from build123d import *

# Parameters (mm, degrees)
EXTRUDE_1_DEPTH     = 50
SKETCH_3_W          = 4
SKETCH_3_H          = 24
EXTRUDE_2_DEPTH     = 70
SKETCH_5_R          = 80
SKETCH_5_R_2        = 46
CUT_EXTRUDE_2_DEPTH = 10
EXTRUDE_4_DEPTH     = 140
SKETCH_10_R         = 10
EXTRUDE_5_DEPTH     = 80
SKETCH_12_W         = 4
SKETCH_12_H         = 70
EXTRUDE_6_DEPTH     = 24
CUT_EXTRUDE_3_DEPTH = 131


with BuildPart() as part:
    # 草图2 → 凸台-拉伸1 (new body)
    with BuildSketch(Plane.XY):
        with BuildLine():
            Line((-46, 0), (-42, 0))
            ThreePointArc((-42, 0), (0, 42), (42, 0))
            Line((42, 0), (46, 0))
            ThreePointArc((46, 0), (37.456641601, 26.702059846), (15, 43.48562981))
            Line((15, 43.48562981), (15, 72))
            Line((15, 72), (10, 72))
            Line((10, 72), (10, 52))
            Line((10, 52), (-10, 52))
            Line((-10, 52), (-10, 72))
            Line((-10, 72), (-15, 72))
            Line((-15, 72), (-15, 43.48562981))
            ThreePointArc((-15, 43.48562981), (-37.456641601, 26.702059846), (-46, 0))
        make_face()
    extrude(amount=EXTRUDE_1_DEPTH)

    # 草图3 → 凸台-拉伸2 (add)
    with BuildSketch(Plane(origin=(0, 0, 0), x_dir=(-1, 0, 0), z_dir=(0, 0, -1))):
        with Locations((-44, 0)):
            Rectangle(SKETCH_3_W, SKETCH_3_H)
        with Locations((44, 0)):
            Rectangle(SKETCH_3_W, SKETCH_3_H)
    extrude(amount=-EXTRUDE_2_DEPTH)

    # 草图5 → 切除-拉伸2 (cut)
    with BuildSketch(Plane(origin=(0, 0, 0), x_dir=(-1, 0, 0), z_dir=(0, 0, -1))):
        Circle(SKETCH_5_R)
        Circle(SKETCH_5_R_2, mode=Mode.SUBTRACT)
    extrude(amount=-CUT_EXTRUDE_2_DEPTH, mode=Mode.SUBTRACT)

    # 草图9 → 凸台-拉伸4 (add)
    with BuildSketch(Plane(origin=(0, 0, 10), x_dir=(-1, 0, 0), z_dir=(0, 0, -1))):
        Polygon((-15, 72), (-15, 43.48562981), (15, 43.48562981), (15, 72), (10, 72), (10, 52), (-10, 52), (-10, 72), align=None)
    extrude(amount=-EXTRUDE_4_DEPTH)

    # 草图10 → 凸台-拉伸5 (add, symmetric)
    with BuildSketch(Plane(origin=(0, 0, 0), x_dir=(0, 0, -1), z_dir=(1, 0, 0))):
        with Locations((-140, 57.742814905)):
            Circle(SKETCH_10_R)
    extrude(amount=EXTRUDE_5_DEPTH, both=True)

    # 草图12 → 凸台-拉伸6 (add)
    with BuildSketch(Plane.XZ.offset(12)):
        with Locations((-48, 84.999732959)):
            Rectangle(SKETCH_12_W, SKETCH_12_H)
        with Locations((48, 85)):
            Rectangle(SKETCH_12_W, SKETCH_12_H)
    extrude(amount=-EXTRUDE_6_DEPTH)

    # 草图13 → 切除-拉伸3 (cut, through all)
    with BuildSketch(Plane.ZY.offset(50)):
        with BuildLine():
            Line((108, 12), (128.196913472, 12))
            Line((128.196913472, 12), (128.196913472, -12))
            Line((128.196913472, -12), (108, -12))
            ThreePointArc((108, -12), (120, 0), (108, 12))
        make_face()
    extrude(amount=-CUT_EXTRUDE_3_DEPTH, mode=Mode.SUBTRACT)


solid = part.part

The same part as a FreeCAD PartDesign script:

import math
import FreeCAD as App
import Part
import Sketcher
Q = App.Units.Quantity

doc = App.newDocument("Part")
body = doc.addObject("PartDesign::Body", "Body")

# Sketch on XY plane
sketch1 = body.newObject("Sketcher::SketchObject", "Sketch")
sketch1.AttachmentSupport = (doc.getObject("XY_Plane"), [""])
sketch1.MapMode = "FlatFace"
sketch1.addGeometry(Part.LineSegment(App.Vector(-46, 0, 0), App.Vector(-42, 0, 0)), False)
sketch1.addGeometry(Part.ArcOfCircle(Part.Circle(App.Vector(0, 0, 0), App.Vector(0, 0, 1), 42), math.radians(0), math.radians(180)), False)
sketch1.addGeometry(Part.LineSegment(App.Vector(42, 0, 0), App.Vector(46, 0, 0)), False)
sketch1.addGeometry(Part.ArcOfCircle(Part.Circle(App.Vector(0, 0, 0), App.Vector(0, 0, 1), 46), math.radians(0), math.radians(71)), False)
sketch1.addGeometry(Part.LineSegment(App.Vector(15, 43.5, 0), App.Vector(15, 72, 0)), False)
sketch1.addGeometry(Part.LineSegment(App.Vector(15, 72, 0), App.Vector(10, 72, 0)), False)
sketch1.addGeometry(Part.LineSegment(App.Vector(10, 72, 0), App.Vector(10, 52, 0)), False)
sketch1.addGeometry(Part.LineSegment(App.Vector(10, 52, 0), App.Vector(-10, 52, 0)), False)
sketch1.addGeometry(Part.LineSegment(App.Vector(-10, 52, 0), App.Vector(-10, 72, 0)), False)
sketch1.addGeometry(Part.LineSegment(App.Vector(-10, 72, 0), App.Vector(-15, 72, 0)), False)
sketch1.addGeometry(Part.LineSegment(App.Vector(-15, 72, 0), App.Vector(-15, 43.5, 0)), False)
sketch1.addGeometry(Part.ArcOfCircle(Part.Circle(App.Vector(0, 0, 0), App.Vector(0, 0, 1), 46), math.radians(109), math.radians(180)), False)
sketch1.addConstraint(Sketcher.Constraint("Coincident", 0, 2, 1, 2))
sketch1.addConstraint(Sketcher.Constraint("Coincident", 1, 1, 2, 1))
sketch1.addConstraint(Sketcher.Constraint("Coincident", 2, 2, 3, 1))
sketch1.addConstraint(Sketcher.Constraint("Coincident", 3, 2, 4, 1))
sketch1.addConstraint(Sketcher.Constraint("Coincident", 4, 2, 5, 1))
sketch1.addConstraint(Sketcher.Constraint("Coincident", 5, 2, 6, 1))
sketch1.addConstraint(Sketcher.Constraint("Coincident", 6, 2, 7, 1))
sketch1.addConstraint(Sketcher.Constraint("Coincident", 7, 2, 8, 1))
sketch1.addConstraint(Sketcher.Constraint("Coincident", 8, 2, 9, 1))
sketch1.addConstraint(Sketcher.Constraint("Coincident", 9, 2, 10, 1))
sketch1.addConstraint(Sketcher.Constraint("Coincident", 10, 2, 11, 1))
sketch1.addConstraint(Sketcher.Constraint("Coincident", 11, 2, 0, 1))
sketch1.addConstraint(Sketcher.Constraint("Horizontal", 0))
sketch1.addConstraint(Sketcher.Constraint("Horizontal", 2))
sketch1.addConstraint(Sketcher.Constraint("Vertical", 4))
sketch1.addConstraint(Sketcher.Constraint("Horizontal", 5))
sketch1.addConstraint(Sketcher.Constraint("Vertical", 6))
sketch1.addConstraint(Sketcher.Constraint("Horizontal", 7))
sketch1.addConstraint(Sketcher.Constraint("Vertical", 8))
sketch1.addConstraint(Sketcher.Constraint("Horizontal", 9))
sketch1.addConstraint(Sketcher.Constraint("Vertical", 10))
sketch1.addConstraint(Sketcher.Constraint("Coincident", 1, 3, -1, 1))
sketch1.addConstraint(Sketcher.Constraint("Coincident", 3, 3, -1, 1))
sketch1.addConstraint(Sketcher.Constraint("Coincident", 11, 3, -1, 1))
sketch1.addConstraint(Sketcher.Constraint("Equal", 3, 11))
sketch1.addConstraint(Sketcher.Constraint("Symmetric", 5, 2, 8, 2, -2))
sketch1.addConstraint(Sketcher.Constraint("PointOnObject", 0, 2, -1))
sketch1.addConstraint(Sketcher.Constraint("PointOnObject", 1, 1, -1))
sketch1.addConstraint(Sketcher.Constraint("Horizontal", 3, 2, 10, 2))
sketch1.addConstraint(Sketcher.Constraint("Equal", 7, 6))
sketch1.addConstraint(Sketcher.Constraint("Radius", 1, Q("42 mm")))
sketch1.addConstraint(Sketcher.Constraint("Radius", 3, Q("46 mm")))
sketch1.addConstraint(Sketcher.Constraint("DistanceX", 5, 2, 5, 1, Q("5 mm")))
sketch1.addConstraint(Sketcher.Constraint("DistanceX", 7, 2, 7, 1, Q("20 mm")))
sketch1.addConstraint(Sketcher.Constraint("DistanceY", -1, 1, 4, 2, Q("72 mm")))
pad1 = body.newObject("PartDesign::Pad", "Pad")
pad1.Profile = sketch1
pad1.Length = 50

# Sketch on XY plane
sketch2 = body.newObject("Sketcher::SketchObject", "Sketch001")
sketch2.AttachmentSupport = (doc.getObject("XY_Plane"), [""])
sketch2.MapMode = "FlatFace"
sketch2.addGeometry(Part.LineSegment(App.Vector(46, 12, 0), App.Vector(46, -12, 0)), False)
sketch2.addGeometry(Part.LineSegment(App.Vector(46, -12, 0), App.Vector(42, -12, 0)), False)
sketch2.addGeometry(Part.LineSegment(App.Vector(42, -12, 0), App.Vector(42, 12, 0)), False)
sketch2.addGeometry(Part.LineSegment(App.Vector(42, 12, 0), App.Vector(46, 12, 0)), False)
sketch2.addGeometry(Part.LineSegment(App.Vector(-42, 12, 0), App.Vector(-42, -12, 0)), False)
sketch2.addGeometry(Part.LineSegment(App.Vector(-42, -12, 0), App.Vector(-46, -12, 0)), False)
sketch2.addGeometry(Part.LineSegment(App.Vector(-46, -12, 0), App.Vector(-46, 12, 0)), False)
sketch2.addGeometry(Part.LineSegment(App.Vector(-46, 12, 0), App.Vector(-42, 12, 0)), False)
sketch2.addConstraint(Sketcher.Constraint("Coincident", 0, 2, 1, 1))
sketch2.addConstraint(Sketcher.Constraint("Coincident", 1, 2, 2, 1))
sketch2.addConstraint(Sketcher.Constraint("Coincident", 2, 2, 3, 1))
sketch2.addConstraint(Sketcher.Constraint("Coincident", 3, 2, 0, 1))
sketch2.addConstraint(Sketcher.Constraint("Coincident", 4, 2, 5, 1))
sketch2.addConstraint(Sketcher.Constraint("Coincident", 5, 2, 6, 1))
sketch2.addConstraint(Sketcher.Constraint("Coincident", 6, 2, 7, 1))
sketch2.addConstraint(Sketcher.Constraint("Coincident", 7, 2, 4, 1))
sketch2.addConstraint(Sketcher.Constraint("Vertical", 0))
sketch2.addConstraint(Sketcher.Constraint("Horizontal", 1))
sketch2.addConstraint(Sketcher.Constraint("Vertical", 2))
sketch2.addConstraint(Sketcher.Constraint("Horizontal", 3))
sketch2.addConstraint(Sketcher.Constraint("Vertical", 4))
sketch2.addConstraint(Sketcher.Constraint("Horizontal", 5))
sketch2.addConstraint(Sketcher.Constraint("Vertical", 6))
sketch2.addConstraint(Sketcher.Constraint("Horizontal", 7))
sketch2.addConstraint(Sketcher.Constraint("Symmetric", 2, 2, 4, 2, -1, 1))
sketch2.addConstraint(Sketcher.Constraint("Symmetric", 0, 2, 6, 2, -1, 1))
sketch2.addConstraint(Sketcher.Constraint("Horizontal", 1, 2, 4, 2))
sketch2.addConstraint(Sketcher.Constraint("DistanceX", 1, 2, 1, 1, Q("4 mm")))
sketch2.addConstraint(Sketcher.Constraint("DistanceY", 0, 2, 0, 1, Q("24 mm")))
sketch2.addConstraint(Sketcher.Constraint("DistanceX", -1, 1, 0, 2, Q("46 mm")))
pad2 = body.newObject("PartDesign::Pad", "Pad001")
pad2.Profile = sketch2
pad2.Length = 70

# Sketch on XY plane
sketch3 = body.newObject("Sketcher::SketchObject", "Sketch002")
sketch3.AttachmentSupport = (doc.getObject("XY_Plane"), [""])
sketch3.MapMode = "FlatFace"
sketch3.addGeometry(Part.Circle(App.Vector(0, 0, 0), App.Vector(0, 0, 1), 80), False)
sketch3.addGeometry(Part.Circle(App.Vector(0, 0, 0), App.Vector(0, 0, 1), 46), False)
sketch3.addConstraint(Sketcher.Constraint("Coincident", 0, 3, -1, 1))
sketch3.addConstraint(Sketcher.Constraint("Coincident", 1, 3, -1, 1))
sketch3.addConstraint(Sketcher.Constraint("Diameter", 0, Q("160 mm")))
sketch3.addConstraint(Sketcher.Constraint("Diameter", 1, Q("92 mm")))
pocket1 = body.newObject("PartDesign::Pocket", "Pocket")
pocket1.Profile = sketch3
pocket1.Length = 10
pocket1.Reversed = True

# Sketch on XY plane
sketch4 = body.newObject("Sketcher::SketchObject", "Sketch003")
sketch4.AttachmentSupport = (doc.getObject("XY_Plane"), [""])
sketch4.MapMode = "FlatFace"
sketch4.AttachmentOffset = App.Placement(App.Vector(0, 0, 10), App.Rotation())
sketch4.addGeometry(Part.LineSegment(App.Vector(15, 72, 0), App.Vector(15, 43, 0)), False)
sketch4.addGeometry(Part.LineSegment(App.Vector(15, 43, 0), App.Vector(-15, 43, 0)), False)
sketch4.addGeometry(Part.LineSegment(App.Vector(-15, 43, 0), App.Vector(-15, 72, 0)), False)
sketch4.addGeometry(Part.LineSegment(App.Vector(-15, 72, 0), App.Vector(-10, 72, 0)), False)
sketch4.addGeometry(Part.LineSegment(App.Vector(-10, 72, 0), App.Vector(-10, 52, 0)), False)
sketch4.addGeometry(Part.LineSegment(App.Vector(-10, 52, 0), App.Vector(10, 52, 0)), False)
sketch4.addGeometry(Part.LineSegment(App.Vector(10, 52, 0), App.Vector(10, 72, 0)), False)
sketch4.addGeometry(Part.LineSegment(App.Vector(10, 72, 0), App.Vector(15, 72, 0)), False)
sketch4.addConstraint(Sketcher.Constraint("Coincident", 0, 2, 1, 1))
sketch4.addConstraint(Sketcher.Constraint("Coincident", 1, 2, 2, 1))
sketch4.addConstraint(Sketcher.Constraint("Coincident", 2, 2, 3, 1))
sketch4.addConstraint(Sketcher.Constraint("Coincident", 3, 2, 4, 1))
sketch4.addConstraint(Sketcher.Constraint("Coincident", 4, 2, 5, 1))
sketch4.addConstraint(Sketcher.Constraint("Coincident", 5, 2, 6, 1))
sketch4.addConstraint(Sketcher.Constraint("Coincident", 6, 2, 7, 1))
sketch4.addConstraint(Sketcher.Constraint("Coincident", 7, 2, 0, 1))
sketch4.addConstraint(Sketcher.Constraint("Vertical", 0))
sketch4.addConstraint(Sketcher.Constraint("Horizontal", 1))
sketch4.addConstraint(Sketcher.Constraint("Vertical", 2))
sketch4.addConstraint(Sketcher.Constraint("Horizontal", 3))
sketch4.addConstraint(Sketcher.Constraint("Vertical", 4))
sketch4.addConstraint(Sketcher.Constraint("Horizontal", 5))
sketch4.addConstraint(Sketcher.Constraint("Vertical", 6))
sketch4.addConstraint(Sketcher.Constraint("Horizontal", 7))
sketch4.addConstraint(Sketcher.Constraint("Symmetric", 3, 2, 6, 2, -2))
sketch4.addConstraint(Sketcher.Constraint("Equal", 3, 7))
sketch4.addConstraint(Sketcher.Constraint("Equal", 5, 4))
sketch4.addConstraint(Sketcher.Constraint("DistanceX", 1, 2, 1, 1, Q("30 mm")))
sketch4.addConstraint(Sketcher.Constraint("DistanceX", 3, 1, 3, 2, Q("5 mm")))
sketch4.addConstraint(Sketcher.Constraint("DistanceY", -1, 1, 2, 2, Q("72 mm")))
sketch4.addConstraint(Sketcher.Constraint("DistanceY", 0, 2, 0, 1, Q("28.51437 mm")))
pad3 = body.newObject("PartDesign::Pad", "Pad002")
pad3.Profile = sketch4
pad3.Length = 140

# Sketch on YZ plane
sketch5 = body.newObject("Sketcher::SketchObject", "Sketch004")
sketch5.AttachmentSupport = (doc.getObject("YZ_Plane"), [""])
sketch5.MapMode = "FlatFace"
sketch5.addGeometry(Part.Circle(App.Vector(58, 140, 0), App.Vector(0, 0, 1), 10), False)
sketch5.addConstraint(Sketcher.Constraint("Diameter", 0, Q("20 mm")))
sketch5.addConstraint(Sketcher.Constraint("DistanceY", -1, 1, 0, 3, Q("140 mm")))
sketch5.addConstraint(Sketcher.Constraint("DistanceX", -1, 1, 0, 3, Q("57.742815 mm")))
pad4 = body.newObject("PartDesign::Pad", "Pad003")
pad4.Profile = sketch5
pad4.Length = 160
pad4.Midplane = True

# Sketch on XZ plane
sketch6 = body.newObject("Sketcher::SketchObject", "Sketch005")
sketch6.AttachmentSupport = (doc.getObject("XZ_Plane"), [""])
sketch6.MapMode = "FlatFace"
sketch6.AttachmentOffset = App.Placement(App.Vector(0, 0, 12), App.Rotation())
sketch6.addGeometry(Part.LineSegment(App.Vector(-50, 120, 0), App.Vector(-50, 50, 0)), False)
sketch6.addGeometry(Part.LineSegment(App.Vector(-50, 50, 0), App.Vector(-46, 50, 0)), False)
sketch6.addGeometry(Part.LineSegment(App.Vector(-46, 50, 0), App.Vector(-46, 120, 0)), False)
sketch6.addGeometry(Part.LineSegment(App.Vector(-46, 120, 0), App.Vector(-50, 120, 0)), False)
sketch6.addGeometry(Part.LineSegment(App.Vector(46, 120, 0), App.Vector(46, 50, 0)), False)
sketch6.addGeometry(Part.LineSegment(App.Vector(46, 50, 0), App.Vector(50, 50, 0)), False)
sketch6.addGeometry(Part.LineSegment(App.Vector(50, 50, 0), App.Vector(50, 120, 0)), False)
sketch6.addGeometry(Part.LineSegment(App.Vector(50, 120, 0), App.Vector(46, 120, 0)), False)
sketch6.addConstraint(Sketcher.Constraint("Coincident", 0, 2, 1, 1))
sketch6.addConstraint(Sketcher.Constraint("Coincident", 1, 2, 2, 1))
sketch6.addConstraint(Sketcher.Constraint("Coincident", 2, 2, 3, 1))
sketch6.addConstraint(Sketcher.Constraint("Coincident", 3, 2, 0, 1))
sketch6.addConstraint(Sketcher.Constraint("Coincident", 4, 2, 5, 1))
sketch6.addConstraint(Sketcher.Constraint("Coincident", 5, 2, 6, 1))
sketch6.addConstraint(Sketcher.Constraint("Coincident", 6, 2, 7, 1))
sketch6.addConstraint(Sketcher.Constraint("Coincident", 7, 2, 4, 1))
sketch6.addConstraint(Sketcher.Constraint("Vertical", 0))
sketch6.addConstraint(Sketcher.Constraint("Horizontal", 1))
sketch6.addConstraint(Sketcher.Constraint("Vertical", 2))
sketch6.addConstraint(Sketcher.Constraint("Horizontal", 3))
sketch6.addConstraint(Sketcher.Constraint("Vertical", 4))
sketch6.addConstraint(Sketcher.Constraint("Horizontal", 5))
sketch6.addConstraint(Sketcher.Constraint("Vertical", 6))
sketch6.addConstraint(Sketcher.Constraint("Horizontal", 7))
sketch6.addConstraint(Sketcher.Constraint("Equal", 3, 5))
sketch6.addConstraint(Sketcher.Constraint("Equal", 2, 4))
sketch6.addConstraint(Sketcher.Constraint("DistanceX", 1, 1, 1, 2, Q("4 mm")))
sketch6.addConstraint(Sketcher.Constraint("DistanceY", 0, 2, 0, 1, Q("70 mm")))
sketch6.addConstraint(Sketcher.Constraint("DistanceX", 0, 2, -1, 1, Q("50 mm")))
sketch6.addConstraint(Sketcher.Constraint("DistanceX", -1, 1, 4, 2, Q("46 mm")))
sketch6.addConstraint(Sketcher.Constraint("DistanceY", -1, 1, 4, 2, Q("50 mm")))
sketch6.addConstraint(Sketcher.Constraint("DistanceY", -1, 1, 0, 2, Q("49.999733 mm")))
pad5 = body.newObject("PartDesign::Pad", "Pad004")
pad5.Profile = sketch6
pad5.Length = 24
pad5.Reversed = True

# Sketch on YZ plane
sketch7 = body.newObject("Sketcher::SketchObject", "Sketch006")
sketch7.AttachmentSupport = (doc.getObject("YZ_Plane"), [""])
sketch7.MapMode = "FlatFace"
sketch7.AttachmentOffset = App.Placement(App.Vector(0, 0, -50), App.Rotation())
sketch7.addGeometry(Part.LineSegment(App.Vector(12, 128, 0), App.Vector(12, 108, 0)), False)
sketch7.addGeometry(Part.ArcOfCircle(Part.Circle(App.Vector(0, 108, 0), App.Vector(0, 0, 1), 12), math.radians(0), math.radians(180)), False)
sketch7.addGeometry(Part.LineSegment(App.Vector(-12, 108, 0), App.Vector(-12, 128, 0)), False)
sketch7.addGeometry(Part.LineSegment(App.Vector(-12, 128, 0), App.Vector(12, 128, 0)), False)
sketch7.addConstraint(Sketcher.Constraint("Tangent", 0, 2, 1, 1))
sketch7.addConstraint(Sketcher.Constraint("Tangent", 1, 2, 2, 1))
sketch7.addConstraint(Sketcher.Constraint("Coincident", 2, 2, 3, 1))
sketch7.addConstraint(Sketcher.Constraint("Coincident", 3, 2, 0, 1))
sketch7.addConstraint(Sketcher.Constraint("Vertical", 0))
sketch7.addConstraint(Sketcher.Constraint("Vertical", 2))
sketch7.addConstraint(Sketcher.Constraint("Horizontal", 3))
sketch7.addConstraint(Sketcher.Constraint("PointOnObject", 1, 3, -2))
sketch7.addConstraint(Sketcher.Constraint("Radius", 1, Q("12 mm")))
sketch7.addConstraint(Sketcher.Constraint("DistanceY", -1, 1, 1, 3, Q("108 mm")))
sketch7.addConstraint(Sketcher.Constraint("DistanceY", 0, 2, 0, 1, Q("20.196913 mm")))
pocket2 = body.newObject("PartDesign::Pocket", "Pocket001")
pocket2.Profile = sketch7
pocket2.Type = "ThroughAll"
pocket2.Reversed = True

doc.recompute()
